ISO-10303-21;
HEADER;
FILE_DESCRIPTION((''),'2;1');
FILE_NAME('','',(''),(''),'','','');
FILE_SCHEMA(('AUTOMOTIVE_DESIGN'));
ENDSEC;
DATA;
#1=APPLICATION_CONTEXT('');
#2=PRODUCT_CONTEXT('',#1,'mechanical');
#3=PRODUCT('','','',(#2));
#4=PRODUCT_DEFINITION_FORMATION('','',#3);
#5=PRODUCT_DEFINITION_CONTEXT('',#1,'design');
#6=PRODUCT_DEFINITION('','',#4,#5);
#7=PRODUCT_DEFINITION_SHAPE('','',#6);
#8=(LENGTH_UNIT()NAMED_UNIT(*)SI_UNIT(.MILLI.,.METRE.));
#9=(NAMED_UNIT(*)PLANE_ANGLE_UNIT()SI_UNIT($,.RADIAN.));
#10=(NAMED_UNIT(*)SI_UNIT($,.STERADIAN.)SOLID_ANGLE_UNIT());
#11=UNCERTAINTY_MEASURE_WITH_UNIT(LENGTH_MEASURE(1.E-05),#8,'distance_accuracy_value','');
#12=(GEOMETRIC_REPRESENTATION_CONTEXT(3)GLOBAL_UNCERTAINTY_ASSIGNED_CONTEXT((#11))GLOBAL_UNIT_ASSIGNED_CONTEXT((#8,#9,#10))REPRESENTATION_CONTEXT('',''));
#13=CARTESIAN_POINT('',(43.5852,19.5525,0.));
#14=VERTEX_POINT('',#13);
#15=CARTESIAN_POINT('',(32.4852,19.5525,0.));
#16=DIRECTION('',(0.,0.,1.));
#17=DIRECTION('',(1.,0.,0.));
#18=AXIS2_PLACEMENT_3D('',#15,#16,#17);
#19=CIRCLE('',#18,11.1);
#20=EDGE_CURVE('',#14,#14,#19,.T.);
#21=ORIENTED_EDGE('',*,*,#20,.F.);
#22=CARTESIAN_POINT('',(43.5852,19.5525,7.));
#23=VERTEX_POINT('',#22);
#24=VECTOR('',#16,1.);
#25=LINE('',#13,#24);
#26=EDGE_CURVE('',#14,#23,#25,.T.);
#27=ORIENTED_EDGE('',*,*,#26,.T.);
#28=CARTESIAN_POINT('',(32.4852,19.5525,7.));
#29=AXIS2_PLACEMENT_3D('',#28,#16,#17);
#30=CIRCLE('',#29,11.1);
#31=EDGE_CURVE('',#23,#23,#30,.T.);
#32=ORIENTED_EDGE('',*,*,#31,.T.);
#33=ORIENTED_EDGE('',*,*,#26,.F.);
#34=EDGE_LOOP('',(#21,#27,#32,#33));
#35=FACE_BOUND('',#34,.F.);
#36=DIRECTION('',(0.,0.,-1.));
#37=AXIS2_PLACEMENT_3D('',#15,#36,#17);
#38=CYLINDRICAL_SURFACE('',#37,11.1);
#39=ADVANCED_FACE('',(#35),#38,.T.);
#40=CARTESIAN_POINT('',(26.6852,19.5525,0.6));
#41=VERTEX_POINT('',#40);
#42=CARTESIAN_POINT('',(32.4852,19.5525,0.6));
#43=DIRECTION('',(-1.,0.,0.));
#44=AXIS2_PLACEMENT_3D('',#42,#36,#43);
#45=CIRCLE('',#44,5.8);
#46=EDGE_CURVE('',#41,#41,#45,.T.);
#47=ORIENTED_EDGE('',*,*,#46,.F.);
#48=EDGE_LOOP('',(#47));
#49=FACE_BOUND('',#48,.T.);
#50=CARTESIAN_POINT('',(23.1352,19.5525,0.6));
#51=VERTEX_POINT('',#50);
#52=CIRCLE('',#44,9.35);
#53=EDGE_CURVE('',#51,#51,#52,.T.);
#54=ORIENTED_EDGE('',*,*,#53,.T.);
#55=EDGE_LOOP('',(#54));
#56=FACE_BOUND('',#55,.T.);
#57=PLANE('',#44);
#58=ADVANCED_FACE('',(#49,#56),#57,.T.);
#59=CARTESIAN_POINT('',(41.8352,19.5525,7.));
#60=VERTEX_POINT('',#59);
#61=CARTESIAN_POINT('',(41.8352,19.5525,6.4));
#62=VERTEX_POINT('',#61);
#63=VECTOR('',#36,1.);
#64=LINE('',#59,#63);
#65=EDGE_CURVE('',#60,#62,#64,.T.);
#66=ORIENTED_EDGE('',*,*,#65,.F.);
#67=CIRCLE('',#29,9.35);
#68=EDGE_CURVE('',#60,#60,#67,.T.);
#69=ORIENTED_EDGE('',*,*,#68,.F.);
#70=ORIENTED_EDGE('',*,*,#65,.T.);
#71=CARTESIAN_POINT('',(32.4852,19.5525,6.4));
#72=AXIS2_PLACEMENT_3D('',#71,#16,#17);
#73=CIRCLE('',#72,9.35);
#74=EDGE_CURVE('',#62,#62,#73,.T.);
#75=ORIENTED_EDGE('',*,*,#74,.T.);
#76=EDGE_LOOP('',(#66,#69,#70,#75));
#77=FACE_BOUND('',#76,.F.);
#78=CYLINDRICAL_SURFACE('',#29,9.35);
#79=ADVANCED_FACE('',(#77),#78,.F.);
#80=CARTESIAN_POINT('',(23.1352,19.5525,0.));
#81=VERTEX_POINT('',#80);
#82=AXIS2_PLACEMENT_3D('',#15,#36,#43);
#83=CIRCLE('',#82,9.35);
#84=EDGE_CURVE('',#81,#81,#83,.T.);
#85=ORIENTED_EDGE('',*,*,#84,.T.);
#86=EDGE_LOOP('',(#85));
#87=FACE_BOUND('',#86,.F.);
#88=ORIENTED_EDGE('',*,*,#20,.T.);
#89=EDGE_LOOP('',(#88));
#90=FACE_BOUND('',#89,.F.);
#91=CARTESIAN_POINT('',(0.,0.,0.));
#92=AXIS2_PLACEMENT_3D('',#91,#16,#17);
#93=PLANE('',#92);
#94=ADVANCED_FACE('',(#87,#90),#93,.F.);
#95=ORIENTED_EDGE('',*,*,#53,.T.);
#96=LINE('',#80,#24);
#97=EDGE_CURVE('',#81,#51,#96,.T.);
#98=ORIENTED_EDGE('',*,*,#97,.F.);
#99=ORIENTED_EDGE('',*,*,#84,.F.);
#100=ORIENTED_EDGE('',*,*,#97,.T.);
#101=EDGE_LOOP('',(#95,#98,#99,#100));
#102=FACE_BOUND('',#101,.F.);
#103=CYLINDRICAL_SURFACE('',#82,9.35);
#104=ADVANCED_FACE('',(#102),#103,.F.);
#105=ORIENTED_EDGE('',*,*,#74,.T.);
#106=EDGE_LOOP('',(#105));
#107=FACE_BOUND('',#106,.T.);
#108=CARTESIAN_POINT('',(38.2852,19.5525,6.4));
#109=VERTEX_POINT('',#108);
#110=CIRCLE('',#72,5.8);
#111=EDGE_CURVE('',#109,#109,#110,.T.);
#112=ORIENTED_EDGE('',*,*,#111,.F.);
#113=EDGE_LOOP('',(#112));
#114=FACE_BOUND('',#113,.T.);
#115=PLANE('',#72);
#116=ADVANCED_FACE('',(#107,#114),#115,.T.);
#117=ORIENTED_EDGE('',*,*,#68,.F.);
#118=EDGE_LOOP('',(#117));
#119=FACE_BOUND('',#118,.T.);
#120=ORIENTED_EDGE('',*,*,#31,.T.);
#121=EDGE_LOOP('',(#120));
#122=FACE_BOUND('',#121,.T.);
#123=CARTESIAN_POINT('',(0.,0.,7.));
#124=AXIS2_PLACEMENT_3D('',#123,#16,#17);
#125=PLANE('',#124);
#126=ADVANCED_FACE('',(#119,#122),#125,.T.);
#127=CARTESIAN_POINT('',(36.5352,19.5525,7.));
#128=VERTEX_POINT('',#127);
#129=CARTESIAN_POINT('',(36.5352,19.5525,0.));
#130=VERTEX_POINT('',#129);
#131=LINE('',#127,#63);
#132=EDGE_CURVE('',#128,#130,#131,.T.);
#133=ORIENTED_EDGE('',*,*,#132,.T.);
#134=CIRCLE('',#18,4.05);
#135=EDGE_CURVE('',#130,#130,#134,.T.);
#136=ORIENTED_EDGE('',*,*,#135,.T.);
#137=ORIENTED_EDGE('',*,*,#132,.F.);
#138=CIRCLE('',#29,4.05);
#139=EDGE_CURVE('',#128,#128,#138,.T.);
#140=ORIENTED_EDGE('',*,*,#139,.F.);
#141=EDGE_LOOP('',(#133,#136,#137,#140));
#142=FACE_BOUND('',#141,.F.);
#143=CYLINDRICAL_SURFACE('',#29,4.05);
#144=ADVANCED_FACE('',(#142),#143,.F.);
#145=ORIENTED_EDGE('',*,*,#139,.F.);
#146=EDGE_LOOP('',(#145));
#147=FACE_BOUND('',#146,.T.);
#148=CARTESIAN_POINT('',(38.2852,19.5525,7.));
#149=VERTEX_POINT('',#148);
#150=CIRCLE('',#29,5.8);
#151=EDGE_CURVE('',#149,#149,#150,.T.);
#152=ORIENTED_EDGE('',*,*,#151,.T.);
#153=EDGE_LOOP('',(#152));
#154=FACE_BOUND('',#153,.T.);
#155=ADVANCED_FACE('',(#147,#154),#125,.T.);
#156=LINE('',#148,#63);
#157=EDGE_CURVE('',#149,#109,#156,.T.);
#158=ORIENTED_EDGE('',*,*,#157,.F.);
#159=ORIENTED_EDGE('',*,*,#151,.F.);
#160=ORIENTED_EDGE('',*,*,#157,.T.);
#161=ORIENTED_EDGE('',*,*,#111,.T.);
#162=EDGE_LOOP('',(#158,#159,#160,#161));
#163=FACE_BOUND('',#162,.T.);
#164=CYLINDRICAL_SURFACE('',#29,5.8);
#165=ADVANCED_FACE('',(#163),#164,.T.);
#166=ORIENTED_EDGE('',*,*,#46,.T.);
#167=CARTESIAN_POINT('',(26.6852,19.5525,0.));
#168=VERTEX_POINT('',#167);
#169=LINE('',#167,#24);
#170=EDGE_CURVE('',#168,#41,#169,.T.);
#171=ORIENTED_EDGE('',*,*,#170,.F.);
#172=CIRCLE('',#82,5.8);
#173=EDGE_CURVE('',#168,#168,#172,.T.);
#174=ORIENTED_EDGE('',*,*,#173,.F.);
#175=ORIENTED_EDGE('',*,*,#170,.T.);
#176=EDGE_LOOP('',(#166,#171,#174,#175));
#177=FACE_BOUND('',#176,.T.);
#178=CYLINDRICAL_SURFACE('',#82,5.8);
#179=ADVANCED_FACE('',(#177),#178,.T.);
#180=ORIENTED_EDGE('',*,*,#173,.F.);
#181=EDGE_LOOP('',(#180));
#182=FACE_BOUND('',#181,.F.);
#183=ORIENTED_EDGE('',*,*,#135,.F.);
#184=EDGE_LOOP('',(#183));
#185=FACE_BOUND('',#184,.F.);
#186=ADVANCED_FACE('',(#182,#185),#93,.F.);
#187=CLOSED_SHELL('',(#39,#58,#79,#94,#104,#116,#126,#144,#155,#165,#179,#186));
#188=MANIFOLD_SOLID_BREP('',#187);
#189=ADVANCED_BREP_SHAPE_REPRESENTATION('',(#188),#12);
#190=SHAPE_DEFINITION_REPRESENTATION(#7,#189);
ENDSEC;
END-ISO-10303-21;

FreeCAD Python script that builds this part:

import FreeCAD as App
import Part
import Sketcher
from FreeCAD import Vector

doc = App.newDocument("Part")
params = doc.addObject("Spreadsheet::Sheet", "Params")
for row, (alias, value) in enumerate([
    ("sketch1_diameter", "22.2 mm"),
    ("pad1_length", "7 mm"),
    ("sketch2_diameter", "8.1 mm"),
    ("pocket1_length", "7 mm"),
    ("sketch3_diameter", "18.7 mm"),
    ("sketch3_diameter2", "11.6 mm"),
    ("pocket2_length", "0.6 mm"),
    ("sketch4_diameter", "18.7 mm"),
    ("sketch4_diameter2", "11.6 mm"),
    ("pocket3_length", "0.6 mm"),
], start=1):
    params.set(f"A{row}", alias)
    params.set(f"B{row}", "=" + value)
    params.setAlias(f"B{row}", alias)

body = doc.addObject("PartDesign::Body", "Body")

# Sketch on XY plane
sketch1 = doc.addObject("Sketcher::SketchObject", "Sketch")
body.addObject(sketch1)
sketch1.AttachmentSupport = (doc.XY_Plane, [""])
sketch1.MapMode = "FlatFace"
sketch1.addGeometry(Part.Circle(Vector(32, 20, 0), Vector(0, 0, 1), 11), False)
sketch1.addConstraint([
    Sketcher.Constraint("Diameter", 0, 22.2),
    Sketcher.Constraint("DistanceX", -1, 1, 0, 3, 32.4852),
    Sketcher.Constraint("DistanceY", -1, 1, 0, 3, 19.5525),
])
sketch1.setExpression("Constraints[0]", "Params.sketch1_diameter")
pad1 = doc.addObject("PartDesign::Pad", "Pad")
body.addObject(pad1)
pad1.Profile = sketch1
pad1.setExpression("Length", "Params.pad1_length")

# Sketch on XY plane
sketch2 = doc.addObject("Sketcher::SketchObject", "Sketch001")
body.addObject(sketch2)
sketch2.AttachmentSupport = (doc.XY_Plane, [""])
sketch2.MapMode = "FlatFace"
sketch2.AttachmentOffset = App.Placement(Vector(0, 0, 7), App.Rotation())
sketch2.addGeometry(Part.Circle(Vector(32.5, 19.6, 0), Vector(0, 0, 1), 4), False)
sketch2.addConstraint([
    Sketcher.Constraint("Diameter", 0, 8.1),
    Sketcher.Constraint("DistanceX", -1, 1, 0, 3, 32.4852),
    Sketcher.Constraint("DistanceY", -1, 1, 0, 3, 19.5525),
])
sketch2.setExpression("Constraints[0]", "Params.sketch2_diameter")
pocket1 = doc.addObject("PartDesign::Pocket", "Pocket")
body.addObject(pocket1)
pocket1.Profile = sketch2
pocket1.setExpression("Length", "Params.pocket1_length")

# Sketch on XY plane
sketch3 = doc.addObject("Sketcher::SketchObject", "Sketch002")
body.addObject(sketch3)
sketch3.AttachmentSupport = (doc.XY_Plane, [""])
sketch3.MapMode = "FlatFace"
sketch3.AttachmentOffset = App.Placement(Vector(0, 0, 7), App.Rotation())
sketch3.addGeometry([
    Part.Circle(Vector(32, 20, 0), Vector(0, 0, 1), 9),
    Part.Circle(Vector(32, 20, 0), Vector(0, 0, 1), 6),
], False)
sketch3.addConstraint([
    Sketcher.Constraint("Coincident", 1, 3, 0, 3),
    Sketcher.Constraint("Diameter", 0, 18.7),
    Sketcher.Constraint("Diameter", 1, 11.6),
    Sketcher.Constraint("DistanceX", -1, 1, 0, 3, 32.4852),
    Sketcher.Constraint("DistanceY", -1, 1, 0, 3, 19.5525),
])
sketch3.setExpression("Constraints[1]", "Params.sketch3_diameter")
sketch3.setExpression("Constraints[2]", "Params.sketch3_diameter2")
pocket2 = doc.addObject("PartDesign::Pocket", "Pocket001")
body.addObject(pocket2)
pocket2.Profile = sketch3
pocket2.setExpression("Length", "Params.pocket2_length")

# Sketch on XY plane
sketch4 = doc.addObject("Sketcher::SketchObject", "Sketch003")
body.addObject(sketch4)
sketch4.AttachmentSupport = (doc.XY_Plane, [""])
sketch4.MapMode = "FlatFace"
sketch4.addGeometry([
    Part.Circle(Vector(32, 20, 0), Vector(0, 0, 1), 9),
    Part.Circle(Vector(32, 20, 0), Vector(0, 0, 1), 6),
], False)
sketch4.addConstraint([
    Sketcher.Constraint("Coincident", 1, 3, 0, 3),
    Sketcher.Constraint("Diameter", 0, 18.7),
    Sketcher.Constraint("Diameter", 1, 11.6),
    Sketcher.Constraint("DistanceX", -1, 1, 0, 3, 32.4852),
    Sketcher.Constraint("DistanceY", -1, 1, 0, 3, 19.5525),
])
sketch4.setExpression("Constraints[1]", "Params.sketch4_diameter")
sketch4.setExpression("Constraints[2]", "Params.sketch4_diameter2")
pocket3 = doc.addObject("PartDesign::Pocket", "Pocket002")
body.addObject(pocket3)
pocket3.Profile = sketch4
pocket3.setExpression("Length", "Params.pocket3_length")
pocket3.Reversed = True

doc.recompute()
